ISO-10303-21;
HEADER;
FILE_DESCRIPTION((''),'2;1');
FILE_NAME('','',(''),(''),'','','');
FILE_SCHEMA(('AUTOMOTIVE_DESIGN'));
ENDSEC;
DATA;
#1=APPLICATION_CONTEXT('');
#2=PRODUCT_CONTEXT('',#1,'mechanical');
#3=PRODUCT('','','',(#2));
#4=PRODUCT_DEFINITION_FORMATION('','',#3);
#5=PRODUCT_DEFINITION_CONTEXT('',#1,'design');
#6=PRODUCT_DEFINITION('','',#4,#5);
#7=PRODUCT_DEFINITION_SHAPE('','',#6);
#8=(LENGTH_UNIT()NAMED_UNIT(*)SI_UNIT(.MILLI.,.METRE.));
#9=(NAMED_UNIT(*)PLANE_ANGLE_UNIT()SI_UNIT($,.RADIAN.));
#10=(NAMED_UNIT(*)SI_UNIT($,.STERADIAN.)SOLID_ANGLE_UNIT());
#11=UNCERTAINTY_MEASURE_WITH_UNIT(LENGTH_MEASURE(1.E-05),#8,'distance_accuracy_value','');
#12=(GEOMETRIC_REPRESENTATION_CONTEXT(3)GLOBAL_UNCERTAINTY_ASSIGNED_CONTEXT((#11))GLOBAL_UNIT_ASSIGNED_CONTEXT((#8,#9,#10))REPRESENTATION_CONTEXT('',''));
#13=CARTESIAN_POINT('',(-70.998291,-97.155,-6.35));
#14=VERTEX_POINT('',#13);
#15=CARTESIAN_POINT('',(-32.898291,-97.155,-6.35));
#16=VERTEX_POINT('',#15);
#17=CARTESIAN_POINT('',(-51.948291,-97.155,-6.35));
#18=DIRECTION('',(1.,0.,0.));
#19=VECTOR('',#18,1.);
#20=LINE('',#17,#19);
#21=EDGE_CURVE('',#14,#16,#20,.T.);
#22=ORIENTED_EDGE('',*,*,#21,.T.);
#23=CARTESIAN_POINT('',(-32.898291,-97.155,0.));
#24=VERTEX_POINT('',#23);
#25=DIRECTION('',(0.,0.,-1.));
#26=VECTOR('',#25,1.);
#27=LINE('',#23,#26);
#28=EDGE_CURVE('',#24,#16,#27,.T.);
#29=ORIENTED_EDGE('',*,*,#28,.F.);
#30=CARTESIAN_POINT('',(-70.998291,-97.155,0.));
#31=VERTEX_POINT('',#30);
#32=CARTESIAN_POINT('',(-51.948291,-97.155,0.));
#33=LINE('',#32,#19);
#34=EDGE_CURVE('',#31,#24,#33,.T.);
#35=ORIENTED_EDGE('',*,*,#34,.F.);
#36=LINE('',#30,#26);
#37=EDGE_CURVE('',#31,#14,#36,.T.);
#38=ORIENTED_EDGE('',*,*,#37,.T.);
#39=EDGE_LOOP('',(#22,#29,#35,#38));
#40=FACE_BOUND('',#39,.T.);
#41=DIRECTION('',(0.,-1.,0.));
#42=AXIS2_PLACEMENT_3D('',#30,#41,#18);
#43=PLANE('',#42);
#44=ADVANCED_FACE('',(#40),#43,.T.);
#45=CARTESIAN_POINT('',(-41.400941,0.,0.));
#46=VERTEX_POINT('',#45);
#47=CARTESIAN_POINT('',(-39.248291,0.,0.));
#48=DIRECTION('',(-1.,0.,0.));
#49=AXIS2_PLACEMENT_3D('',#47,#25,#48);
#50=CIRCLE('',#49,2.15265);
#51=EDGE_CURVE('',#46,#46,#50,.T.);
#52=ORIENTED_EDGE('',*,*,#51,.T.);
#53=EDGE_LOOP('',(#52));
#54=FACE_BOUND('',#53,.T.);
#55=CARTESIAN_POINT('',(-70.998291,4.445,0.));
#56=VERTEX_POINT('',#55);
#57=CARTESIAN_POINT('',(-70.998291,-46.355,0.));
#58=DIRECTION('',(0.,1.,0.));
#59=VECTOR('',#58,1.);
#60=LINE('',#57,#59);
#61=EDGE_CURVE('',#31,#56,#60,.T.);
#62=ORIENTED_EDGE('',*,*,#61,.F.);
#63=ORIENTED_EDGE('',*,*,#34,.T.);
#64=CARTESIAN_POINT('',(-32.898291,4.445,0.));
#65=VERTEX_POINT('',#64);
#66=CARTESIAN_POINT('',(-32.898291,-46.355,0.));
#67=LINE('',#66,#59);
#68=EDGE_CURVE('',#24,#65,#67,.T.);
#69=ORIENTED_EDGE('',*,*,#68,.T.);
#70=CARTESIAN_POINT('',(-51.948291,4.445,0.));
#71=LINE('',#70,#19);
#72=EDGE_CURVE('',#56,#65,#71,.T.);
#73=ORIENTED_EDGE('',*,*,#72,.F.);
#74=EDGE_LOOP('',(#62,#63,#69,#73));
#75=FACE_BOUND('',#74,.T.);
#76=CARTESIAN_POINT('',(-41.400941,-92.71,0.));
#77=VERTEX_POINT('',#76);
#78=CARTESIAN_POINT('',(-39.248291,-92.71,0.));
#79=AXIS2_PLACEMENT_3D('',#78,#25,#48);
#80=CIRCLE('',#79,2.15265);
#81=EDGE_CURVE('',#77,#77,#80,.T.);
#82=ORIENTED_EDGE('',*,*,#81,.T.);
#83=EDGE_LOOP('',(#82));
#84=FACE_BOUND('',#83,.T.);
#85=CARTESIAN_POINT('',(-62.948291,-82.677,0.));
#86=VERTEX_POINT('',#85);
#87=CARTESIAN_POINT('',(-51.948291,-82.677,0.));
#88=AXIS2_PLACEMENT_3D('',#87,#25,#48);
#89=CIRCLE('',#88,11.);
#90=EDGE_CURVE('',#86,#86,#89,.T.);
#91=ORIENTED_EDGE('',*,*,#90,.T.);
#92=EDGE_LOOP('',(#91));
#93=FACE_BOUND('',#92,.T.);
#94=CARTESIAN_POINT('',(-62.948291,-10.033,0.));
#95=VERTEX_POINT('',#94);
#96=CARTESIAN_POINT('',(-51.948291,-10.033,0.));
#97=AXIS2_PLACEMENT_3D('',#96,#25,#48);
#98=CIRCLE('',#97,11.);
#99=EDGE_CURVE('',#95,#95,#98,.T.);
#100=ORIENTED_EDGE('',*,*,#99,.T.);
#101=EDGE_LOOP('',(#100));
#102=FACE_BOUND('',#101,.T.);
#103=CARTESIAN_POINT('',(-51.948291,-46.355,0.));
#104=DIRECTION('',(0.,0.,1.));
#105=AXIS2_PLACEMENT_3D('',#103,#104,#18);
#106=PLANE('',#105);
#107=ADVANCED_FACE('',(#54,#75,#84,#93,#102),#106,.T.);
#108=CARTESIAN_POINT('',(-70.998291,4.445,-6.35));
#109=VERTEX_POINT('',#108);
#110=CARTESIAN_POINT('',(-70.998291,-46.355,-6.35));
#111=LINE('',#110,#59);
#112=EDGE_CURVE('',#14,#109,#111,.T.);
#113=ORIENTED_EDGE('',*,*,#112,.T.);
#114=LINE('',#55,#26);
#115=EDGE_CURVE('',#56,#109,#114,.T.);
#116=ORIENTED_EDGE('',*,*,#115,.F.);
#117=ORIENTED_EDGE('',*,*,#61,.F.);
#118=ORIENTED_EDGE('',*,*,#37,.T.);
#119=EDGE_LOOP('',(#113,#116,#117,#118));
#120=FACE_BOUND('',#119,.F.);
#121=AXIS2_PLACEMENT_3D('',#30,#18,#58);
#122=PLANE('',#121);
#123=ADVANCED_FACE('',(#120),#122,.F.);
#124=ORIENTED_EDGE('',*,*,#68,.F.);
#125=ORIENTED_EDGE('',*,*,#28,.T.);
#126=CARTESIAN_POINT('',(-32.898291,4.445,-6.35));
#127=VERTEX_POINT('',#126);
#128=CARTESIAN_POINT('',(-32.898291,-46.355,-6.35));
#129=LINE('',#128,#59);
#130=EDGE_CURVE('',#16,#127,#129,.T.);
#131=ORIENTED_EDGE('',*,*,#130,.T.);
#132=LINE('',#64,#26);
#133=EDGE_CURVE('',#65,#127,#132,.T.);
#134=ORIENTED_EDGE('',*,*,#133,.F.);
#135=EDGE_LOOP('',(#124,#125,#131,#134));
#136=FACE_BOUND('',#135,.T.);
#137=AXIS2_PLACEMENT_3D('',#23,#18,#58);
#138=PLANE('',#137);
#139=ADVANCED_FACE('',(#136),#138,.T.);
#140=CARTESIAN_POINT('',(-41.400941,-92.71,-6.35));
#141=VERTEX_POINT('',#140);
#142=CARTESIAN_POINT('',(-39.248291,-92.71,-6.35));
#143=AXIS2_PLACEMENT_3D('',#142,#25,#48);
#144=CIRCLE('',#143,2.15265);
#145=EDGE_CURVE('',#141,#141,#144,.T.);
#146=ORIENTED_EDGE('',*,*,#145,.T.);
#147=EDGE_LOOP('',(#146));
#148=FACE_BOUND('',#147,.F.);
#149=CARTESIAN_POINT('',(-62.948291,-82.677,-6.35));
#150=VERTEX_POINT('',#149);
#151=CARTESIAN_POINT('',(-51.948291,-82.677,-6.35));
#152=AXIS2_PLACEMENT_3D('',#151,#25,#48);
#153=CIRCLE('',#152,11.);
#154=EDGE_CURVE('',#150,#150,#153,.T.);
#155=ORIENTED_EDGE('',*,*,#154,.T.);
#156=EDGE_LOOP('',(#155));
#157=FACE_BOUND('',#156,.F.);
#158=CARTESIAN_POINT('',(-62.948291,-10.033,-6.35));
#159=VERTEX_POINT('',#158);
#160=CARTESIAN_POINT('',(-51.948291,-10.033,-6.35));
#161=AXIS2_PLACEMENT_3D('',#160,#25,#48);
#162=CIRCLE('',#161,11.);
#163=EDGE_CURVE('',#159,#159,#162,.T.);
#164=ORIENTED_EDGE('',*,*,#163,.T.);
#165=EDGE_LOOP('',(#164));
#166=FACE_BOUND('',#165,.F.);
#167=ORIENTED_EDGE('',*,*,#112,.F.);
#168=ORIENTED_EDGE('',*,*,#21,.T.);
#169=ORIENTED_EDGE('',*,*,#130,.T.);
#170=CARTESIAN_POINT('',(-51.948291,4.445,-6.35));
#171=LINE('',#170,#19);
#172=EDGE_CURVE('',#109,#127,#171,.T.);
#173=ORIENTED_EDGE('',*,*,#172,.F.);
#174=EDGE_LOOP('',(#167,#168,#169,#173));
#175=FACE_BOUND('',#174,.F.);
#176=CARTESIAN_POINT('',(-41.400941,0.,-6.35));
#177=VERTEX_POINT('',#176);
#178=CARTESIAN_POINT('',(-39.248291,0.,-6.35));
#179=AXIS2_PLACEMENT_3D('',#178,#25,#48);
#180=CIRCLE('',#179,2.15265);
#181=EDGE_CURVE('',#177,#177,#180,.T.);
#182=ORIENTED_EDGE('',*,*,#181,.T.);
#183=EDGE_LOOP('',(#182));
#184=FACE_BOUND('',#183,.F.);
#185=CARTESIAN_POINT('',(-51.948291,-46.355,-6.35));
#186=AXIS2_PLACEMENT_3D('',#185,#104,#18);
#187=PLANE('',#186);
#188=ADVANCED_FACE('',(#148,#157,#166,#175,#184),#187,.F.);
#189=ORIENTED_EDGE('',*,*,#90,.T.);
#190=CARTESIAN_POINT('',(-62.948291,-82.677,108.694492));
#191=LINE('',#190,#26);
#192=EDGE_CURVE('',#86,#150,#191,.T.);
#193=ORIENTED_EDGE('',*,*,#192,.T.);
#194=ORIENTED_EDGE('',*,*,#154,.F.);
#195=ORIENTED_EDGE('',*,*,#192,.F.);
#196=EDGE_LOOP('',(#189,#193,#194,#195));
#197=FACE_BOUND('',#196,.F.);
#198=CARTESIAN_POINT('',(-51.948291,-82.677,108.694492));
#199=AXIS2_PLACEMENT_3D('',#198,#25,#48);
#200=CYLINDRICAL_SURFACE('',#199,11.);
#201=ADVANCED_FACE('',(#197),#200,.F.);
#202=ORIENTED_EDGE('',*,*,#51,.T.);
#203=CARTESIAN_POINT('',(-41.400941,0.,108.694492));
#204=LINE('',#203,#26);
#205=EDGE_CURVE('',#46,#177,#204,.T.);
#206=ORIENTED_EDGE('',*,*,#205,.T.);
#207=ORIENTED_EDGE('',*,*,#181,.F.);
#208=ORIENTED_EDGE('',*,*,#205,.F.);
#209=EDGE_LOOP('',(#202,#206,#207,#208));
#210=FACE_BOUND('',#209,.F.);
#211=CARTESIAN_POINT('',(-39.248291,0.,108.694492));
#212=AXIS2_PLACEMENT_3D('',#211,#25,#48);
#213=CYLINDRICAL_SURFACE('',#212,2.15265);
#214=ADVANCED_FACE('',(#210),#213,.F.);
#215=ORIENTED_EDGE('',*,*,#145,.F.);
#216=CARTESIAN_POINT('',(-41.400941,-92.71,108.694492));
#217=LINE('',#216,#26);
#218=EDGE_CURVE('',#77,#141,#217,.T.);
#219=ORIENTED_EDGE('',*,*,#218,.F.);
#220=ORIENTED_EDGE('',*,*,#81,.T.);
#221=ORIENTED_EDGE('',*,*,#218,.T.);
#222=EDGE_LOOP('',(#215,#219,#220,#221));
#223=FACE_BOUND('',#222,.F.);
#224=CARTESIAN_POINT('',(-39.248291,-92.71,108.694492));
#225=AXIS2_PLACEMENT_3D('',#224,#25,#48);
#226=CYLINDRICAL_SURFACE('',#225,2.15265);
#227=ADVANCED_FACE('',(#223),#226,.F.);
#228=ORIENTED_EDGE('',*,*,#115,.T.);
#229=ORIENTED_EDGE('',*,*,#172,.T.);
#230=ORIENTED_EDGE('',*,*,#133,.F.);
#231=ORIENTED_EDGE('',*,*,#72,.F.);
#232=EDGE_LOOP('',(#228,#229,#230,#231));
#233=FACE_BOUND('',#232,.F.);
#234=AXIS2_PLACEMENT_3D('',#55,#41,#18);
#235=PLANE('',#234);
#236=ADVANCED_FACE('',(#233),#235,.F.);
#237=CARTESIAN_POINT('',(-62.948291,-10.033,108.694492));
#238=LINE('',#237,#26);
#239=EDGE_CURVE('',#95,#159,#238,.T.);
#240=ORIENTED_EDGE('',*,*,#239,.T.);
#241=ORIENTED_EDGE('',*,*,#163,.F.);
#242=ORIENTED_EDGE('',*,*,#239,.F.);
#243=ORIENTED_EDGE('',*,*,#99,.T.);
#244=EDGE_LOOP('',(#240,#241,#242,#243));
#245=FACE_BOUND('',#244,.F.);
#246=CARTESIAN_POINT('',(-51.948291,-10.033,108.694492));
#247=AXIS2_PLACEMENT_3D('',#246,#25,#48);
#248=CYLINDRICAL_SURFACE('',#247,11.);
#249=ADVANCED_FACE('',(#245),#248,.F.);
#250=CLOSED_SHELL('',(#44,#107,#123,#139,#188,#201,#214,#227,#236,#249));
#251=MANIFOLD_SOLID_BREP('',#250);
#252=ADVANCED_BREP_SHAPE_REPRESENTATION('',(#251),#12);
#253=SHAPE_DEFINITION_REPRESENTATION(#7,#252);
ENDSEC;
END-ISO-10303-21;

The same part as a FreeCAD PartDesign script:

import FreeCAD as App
import Part
import Sketcher

V = App.Vector
Q = App.Units.Quantity

doc = App.newDocument("Part")
body = doc.addObject("PartDesign::Body", "Body")

sketch1 = body.newObject("Sketcher::SketchObject", "Sketch")
sketch1.AttachmentSupport = (doc.getObject("XY_Plane"), [""])
sketch1.MapMode = "FlatFace"
sketch1.addGeometry(Part.LineSegment(V(-70.998291, 4.445, 0), V(-70.998291, -97.155, 0)), False)
sketch1.addGeometry(Part.LineSegment(V(-70.998291, -97.155, 0), V(-32.898291, -97.155, 0)), False)
sketch1.addGeometry(Part.LineSegment(V(-32.898291, -97.155, 0), V(-32.898291, 4.445, 0)), False)
sketch1.addGeometry(Part.LineSegment(V(-32.898291, 4.445, 0), V(-70.998291, 4.445, 0)), False)
sketch1.addConstraint(Sketcher.Constraint("Coincident", 0, 2, 1, 1))
sketch1.addConstraint(Sketcher.Constraint("Coincident", 1, 2, 2, 1))
sketch1.addConstraint(Sketcher.Constraint("Coincident", 2, 2, 3, 1))
sketch1.addConstraint(Sketcher.Constraint("Coincident", 3, 2, 0, 1))
sketch1.addConstraint(Sketcher.Constraint("Vertical", 0))
sketch1.addConstraint(Sketcher.Constraint("Horizontal", 1))
sketch1.addConstraint(Sketcher.Constraint("Vertical", 2))
sketch1.addConstraint(Sketcher.Constraint("Horizontal", 3))
sketch1.addConstraint(Sketcher.Constraint("DistanceY", 0, 2, 0, 1, Q("4 in")))
sketch1.addConstraint(Sketcher.Constraint("DistanceX", 1, 1, 1, 2, Q("1.5 in")))
sketch1.addConstraint(Sketcher.Constraint("DistanceY", 0, 2, -1, 1, Q("3.825 in")))
sketch1.addConstraint(Sketcher.Constraint("DistanceX", 0, 2, -1, 1, Q("70.998291 mm")))
pad1 = body.newObject("PartDesign::Pad", "Pad")
pad1.Profile = sketch1
pad1.Length = Q("0.25 in")
pad1.Reversed = True

sketch2 = body.newObject("Sketcher::SketchObject", "Sketch001")
sketch2.AttachmentSupport = (doc.getObject("XY_Plane"), [""])
sketch2.MapMode = "FlatFace"
sketch2.addGeometry(Part.Circle(V(-51.948291, -10.033, 0), V(0, 0, 1), 11), False)
sketch2.addGeometry(Part.Circle(V(-51.948291, -82.677, 0), V(0, 0, 1), 11), False)
sketch2.addConstraint(Sketcher.Constraint("Equal", 0, 1))
sketch2.addConstraint(Sketcher.Constraint("Vertical", 0, 3, 1, 3))
sketch2.addConstraint(Sketcher.Constraint("Diameter", 0, Q("22 mm")))
sketch2.addConstraint(Sketcher.Constraint("DistanceY", 1, 3, 0, 3, Q("2.86 in")))
sketch2.addConstraint(Sketcher.Constraint("DistanceY", 0, 3, -1, 1, Q("0.395 in")))
sketch2.addConstraint(Sketcher.Constraint("DistanceX", 0, 3, -1, 1, Q("51.948291 mm")))
doc.recompute()
hole = body.newObject("PartDesign::Hole", "Hole")
hole.Profile = sketch2
hole.ThreadType = "None"
hole.Diameter = 22
hole.DepthType = "ThroughAll"

sketch3 = body.newObject("Sketcher::SketchObject", "Sketch002")
sketch3.AttachmentSupport = (doc.getObject("XY_Plane"), [""])
sketch3.MapMode = "FlatFace"
sketch3.addGeometry(Part.Circle(V(-39.248291, 0, 0), V(0, 0, 1), 2.15265), False)
sketch3.addGeometry(Part.Circle(V(-39.248291, -92.71, 0), V(0, 0, 1), 2.15265), False)
sketch3.addConstraint(Sketcher.Constraint("Equal", 0, 1))
sketch3.addConstraint(Sketcher.Constraint("PointOnObject", 0, 3, -1))
sketch3.addConstraint(Sketcher.Constraint("Vertical", 0, 3, 1, 3))
sketch3.addConstraint(Sketcher.Constraint("Diameter", 0, Q("0.1695 in")))
sketch3.addConstraint(Sketcher.Constraint("DistanceY", 1, 3, -1, 1, Q("3.65 in")))
sketch3.addConstraint(Sketcher.Constraint("DistanceX", 0, 3, -1, 1, Q("39.248291 mm")))
doc.recompute()
hole2 = body.newObject("PartDesign::Hole", "Hole001")
hole2.Profile = sketch3
hole2.ThreadType = "None"
hole2.Diameter = Q("0.1695 in")
hole2.DepthType = "ThroughAll"

doc.recompute()
